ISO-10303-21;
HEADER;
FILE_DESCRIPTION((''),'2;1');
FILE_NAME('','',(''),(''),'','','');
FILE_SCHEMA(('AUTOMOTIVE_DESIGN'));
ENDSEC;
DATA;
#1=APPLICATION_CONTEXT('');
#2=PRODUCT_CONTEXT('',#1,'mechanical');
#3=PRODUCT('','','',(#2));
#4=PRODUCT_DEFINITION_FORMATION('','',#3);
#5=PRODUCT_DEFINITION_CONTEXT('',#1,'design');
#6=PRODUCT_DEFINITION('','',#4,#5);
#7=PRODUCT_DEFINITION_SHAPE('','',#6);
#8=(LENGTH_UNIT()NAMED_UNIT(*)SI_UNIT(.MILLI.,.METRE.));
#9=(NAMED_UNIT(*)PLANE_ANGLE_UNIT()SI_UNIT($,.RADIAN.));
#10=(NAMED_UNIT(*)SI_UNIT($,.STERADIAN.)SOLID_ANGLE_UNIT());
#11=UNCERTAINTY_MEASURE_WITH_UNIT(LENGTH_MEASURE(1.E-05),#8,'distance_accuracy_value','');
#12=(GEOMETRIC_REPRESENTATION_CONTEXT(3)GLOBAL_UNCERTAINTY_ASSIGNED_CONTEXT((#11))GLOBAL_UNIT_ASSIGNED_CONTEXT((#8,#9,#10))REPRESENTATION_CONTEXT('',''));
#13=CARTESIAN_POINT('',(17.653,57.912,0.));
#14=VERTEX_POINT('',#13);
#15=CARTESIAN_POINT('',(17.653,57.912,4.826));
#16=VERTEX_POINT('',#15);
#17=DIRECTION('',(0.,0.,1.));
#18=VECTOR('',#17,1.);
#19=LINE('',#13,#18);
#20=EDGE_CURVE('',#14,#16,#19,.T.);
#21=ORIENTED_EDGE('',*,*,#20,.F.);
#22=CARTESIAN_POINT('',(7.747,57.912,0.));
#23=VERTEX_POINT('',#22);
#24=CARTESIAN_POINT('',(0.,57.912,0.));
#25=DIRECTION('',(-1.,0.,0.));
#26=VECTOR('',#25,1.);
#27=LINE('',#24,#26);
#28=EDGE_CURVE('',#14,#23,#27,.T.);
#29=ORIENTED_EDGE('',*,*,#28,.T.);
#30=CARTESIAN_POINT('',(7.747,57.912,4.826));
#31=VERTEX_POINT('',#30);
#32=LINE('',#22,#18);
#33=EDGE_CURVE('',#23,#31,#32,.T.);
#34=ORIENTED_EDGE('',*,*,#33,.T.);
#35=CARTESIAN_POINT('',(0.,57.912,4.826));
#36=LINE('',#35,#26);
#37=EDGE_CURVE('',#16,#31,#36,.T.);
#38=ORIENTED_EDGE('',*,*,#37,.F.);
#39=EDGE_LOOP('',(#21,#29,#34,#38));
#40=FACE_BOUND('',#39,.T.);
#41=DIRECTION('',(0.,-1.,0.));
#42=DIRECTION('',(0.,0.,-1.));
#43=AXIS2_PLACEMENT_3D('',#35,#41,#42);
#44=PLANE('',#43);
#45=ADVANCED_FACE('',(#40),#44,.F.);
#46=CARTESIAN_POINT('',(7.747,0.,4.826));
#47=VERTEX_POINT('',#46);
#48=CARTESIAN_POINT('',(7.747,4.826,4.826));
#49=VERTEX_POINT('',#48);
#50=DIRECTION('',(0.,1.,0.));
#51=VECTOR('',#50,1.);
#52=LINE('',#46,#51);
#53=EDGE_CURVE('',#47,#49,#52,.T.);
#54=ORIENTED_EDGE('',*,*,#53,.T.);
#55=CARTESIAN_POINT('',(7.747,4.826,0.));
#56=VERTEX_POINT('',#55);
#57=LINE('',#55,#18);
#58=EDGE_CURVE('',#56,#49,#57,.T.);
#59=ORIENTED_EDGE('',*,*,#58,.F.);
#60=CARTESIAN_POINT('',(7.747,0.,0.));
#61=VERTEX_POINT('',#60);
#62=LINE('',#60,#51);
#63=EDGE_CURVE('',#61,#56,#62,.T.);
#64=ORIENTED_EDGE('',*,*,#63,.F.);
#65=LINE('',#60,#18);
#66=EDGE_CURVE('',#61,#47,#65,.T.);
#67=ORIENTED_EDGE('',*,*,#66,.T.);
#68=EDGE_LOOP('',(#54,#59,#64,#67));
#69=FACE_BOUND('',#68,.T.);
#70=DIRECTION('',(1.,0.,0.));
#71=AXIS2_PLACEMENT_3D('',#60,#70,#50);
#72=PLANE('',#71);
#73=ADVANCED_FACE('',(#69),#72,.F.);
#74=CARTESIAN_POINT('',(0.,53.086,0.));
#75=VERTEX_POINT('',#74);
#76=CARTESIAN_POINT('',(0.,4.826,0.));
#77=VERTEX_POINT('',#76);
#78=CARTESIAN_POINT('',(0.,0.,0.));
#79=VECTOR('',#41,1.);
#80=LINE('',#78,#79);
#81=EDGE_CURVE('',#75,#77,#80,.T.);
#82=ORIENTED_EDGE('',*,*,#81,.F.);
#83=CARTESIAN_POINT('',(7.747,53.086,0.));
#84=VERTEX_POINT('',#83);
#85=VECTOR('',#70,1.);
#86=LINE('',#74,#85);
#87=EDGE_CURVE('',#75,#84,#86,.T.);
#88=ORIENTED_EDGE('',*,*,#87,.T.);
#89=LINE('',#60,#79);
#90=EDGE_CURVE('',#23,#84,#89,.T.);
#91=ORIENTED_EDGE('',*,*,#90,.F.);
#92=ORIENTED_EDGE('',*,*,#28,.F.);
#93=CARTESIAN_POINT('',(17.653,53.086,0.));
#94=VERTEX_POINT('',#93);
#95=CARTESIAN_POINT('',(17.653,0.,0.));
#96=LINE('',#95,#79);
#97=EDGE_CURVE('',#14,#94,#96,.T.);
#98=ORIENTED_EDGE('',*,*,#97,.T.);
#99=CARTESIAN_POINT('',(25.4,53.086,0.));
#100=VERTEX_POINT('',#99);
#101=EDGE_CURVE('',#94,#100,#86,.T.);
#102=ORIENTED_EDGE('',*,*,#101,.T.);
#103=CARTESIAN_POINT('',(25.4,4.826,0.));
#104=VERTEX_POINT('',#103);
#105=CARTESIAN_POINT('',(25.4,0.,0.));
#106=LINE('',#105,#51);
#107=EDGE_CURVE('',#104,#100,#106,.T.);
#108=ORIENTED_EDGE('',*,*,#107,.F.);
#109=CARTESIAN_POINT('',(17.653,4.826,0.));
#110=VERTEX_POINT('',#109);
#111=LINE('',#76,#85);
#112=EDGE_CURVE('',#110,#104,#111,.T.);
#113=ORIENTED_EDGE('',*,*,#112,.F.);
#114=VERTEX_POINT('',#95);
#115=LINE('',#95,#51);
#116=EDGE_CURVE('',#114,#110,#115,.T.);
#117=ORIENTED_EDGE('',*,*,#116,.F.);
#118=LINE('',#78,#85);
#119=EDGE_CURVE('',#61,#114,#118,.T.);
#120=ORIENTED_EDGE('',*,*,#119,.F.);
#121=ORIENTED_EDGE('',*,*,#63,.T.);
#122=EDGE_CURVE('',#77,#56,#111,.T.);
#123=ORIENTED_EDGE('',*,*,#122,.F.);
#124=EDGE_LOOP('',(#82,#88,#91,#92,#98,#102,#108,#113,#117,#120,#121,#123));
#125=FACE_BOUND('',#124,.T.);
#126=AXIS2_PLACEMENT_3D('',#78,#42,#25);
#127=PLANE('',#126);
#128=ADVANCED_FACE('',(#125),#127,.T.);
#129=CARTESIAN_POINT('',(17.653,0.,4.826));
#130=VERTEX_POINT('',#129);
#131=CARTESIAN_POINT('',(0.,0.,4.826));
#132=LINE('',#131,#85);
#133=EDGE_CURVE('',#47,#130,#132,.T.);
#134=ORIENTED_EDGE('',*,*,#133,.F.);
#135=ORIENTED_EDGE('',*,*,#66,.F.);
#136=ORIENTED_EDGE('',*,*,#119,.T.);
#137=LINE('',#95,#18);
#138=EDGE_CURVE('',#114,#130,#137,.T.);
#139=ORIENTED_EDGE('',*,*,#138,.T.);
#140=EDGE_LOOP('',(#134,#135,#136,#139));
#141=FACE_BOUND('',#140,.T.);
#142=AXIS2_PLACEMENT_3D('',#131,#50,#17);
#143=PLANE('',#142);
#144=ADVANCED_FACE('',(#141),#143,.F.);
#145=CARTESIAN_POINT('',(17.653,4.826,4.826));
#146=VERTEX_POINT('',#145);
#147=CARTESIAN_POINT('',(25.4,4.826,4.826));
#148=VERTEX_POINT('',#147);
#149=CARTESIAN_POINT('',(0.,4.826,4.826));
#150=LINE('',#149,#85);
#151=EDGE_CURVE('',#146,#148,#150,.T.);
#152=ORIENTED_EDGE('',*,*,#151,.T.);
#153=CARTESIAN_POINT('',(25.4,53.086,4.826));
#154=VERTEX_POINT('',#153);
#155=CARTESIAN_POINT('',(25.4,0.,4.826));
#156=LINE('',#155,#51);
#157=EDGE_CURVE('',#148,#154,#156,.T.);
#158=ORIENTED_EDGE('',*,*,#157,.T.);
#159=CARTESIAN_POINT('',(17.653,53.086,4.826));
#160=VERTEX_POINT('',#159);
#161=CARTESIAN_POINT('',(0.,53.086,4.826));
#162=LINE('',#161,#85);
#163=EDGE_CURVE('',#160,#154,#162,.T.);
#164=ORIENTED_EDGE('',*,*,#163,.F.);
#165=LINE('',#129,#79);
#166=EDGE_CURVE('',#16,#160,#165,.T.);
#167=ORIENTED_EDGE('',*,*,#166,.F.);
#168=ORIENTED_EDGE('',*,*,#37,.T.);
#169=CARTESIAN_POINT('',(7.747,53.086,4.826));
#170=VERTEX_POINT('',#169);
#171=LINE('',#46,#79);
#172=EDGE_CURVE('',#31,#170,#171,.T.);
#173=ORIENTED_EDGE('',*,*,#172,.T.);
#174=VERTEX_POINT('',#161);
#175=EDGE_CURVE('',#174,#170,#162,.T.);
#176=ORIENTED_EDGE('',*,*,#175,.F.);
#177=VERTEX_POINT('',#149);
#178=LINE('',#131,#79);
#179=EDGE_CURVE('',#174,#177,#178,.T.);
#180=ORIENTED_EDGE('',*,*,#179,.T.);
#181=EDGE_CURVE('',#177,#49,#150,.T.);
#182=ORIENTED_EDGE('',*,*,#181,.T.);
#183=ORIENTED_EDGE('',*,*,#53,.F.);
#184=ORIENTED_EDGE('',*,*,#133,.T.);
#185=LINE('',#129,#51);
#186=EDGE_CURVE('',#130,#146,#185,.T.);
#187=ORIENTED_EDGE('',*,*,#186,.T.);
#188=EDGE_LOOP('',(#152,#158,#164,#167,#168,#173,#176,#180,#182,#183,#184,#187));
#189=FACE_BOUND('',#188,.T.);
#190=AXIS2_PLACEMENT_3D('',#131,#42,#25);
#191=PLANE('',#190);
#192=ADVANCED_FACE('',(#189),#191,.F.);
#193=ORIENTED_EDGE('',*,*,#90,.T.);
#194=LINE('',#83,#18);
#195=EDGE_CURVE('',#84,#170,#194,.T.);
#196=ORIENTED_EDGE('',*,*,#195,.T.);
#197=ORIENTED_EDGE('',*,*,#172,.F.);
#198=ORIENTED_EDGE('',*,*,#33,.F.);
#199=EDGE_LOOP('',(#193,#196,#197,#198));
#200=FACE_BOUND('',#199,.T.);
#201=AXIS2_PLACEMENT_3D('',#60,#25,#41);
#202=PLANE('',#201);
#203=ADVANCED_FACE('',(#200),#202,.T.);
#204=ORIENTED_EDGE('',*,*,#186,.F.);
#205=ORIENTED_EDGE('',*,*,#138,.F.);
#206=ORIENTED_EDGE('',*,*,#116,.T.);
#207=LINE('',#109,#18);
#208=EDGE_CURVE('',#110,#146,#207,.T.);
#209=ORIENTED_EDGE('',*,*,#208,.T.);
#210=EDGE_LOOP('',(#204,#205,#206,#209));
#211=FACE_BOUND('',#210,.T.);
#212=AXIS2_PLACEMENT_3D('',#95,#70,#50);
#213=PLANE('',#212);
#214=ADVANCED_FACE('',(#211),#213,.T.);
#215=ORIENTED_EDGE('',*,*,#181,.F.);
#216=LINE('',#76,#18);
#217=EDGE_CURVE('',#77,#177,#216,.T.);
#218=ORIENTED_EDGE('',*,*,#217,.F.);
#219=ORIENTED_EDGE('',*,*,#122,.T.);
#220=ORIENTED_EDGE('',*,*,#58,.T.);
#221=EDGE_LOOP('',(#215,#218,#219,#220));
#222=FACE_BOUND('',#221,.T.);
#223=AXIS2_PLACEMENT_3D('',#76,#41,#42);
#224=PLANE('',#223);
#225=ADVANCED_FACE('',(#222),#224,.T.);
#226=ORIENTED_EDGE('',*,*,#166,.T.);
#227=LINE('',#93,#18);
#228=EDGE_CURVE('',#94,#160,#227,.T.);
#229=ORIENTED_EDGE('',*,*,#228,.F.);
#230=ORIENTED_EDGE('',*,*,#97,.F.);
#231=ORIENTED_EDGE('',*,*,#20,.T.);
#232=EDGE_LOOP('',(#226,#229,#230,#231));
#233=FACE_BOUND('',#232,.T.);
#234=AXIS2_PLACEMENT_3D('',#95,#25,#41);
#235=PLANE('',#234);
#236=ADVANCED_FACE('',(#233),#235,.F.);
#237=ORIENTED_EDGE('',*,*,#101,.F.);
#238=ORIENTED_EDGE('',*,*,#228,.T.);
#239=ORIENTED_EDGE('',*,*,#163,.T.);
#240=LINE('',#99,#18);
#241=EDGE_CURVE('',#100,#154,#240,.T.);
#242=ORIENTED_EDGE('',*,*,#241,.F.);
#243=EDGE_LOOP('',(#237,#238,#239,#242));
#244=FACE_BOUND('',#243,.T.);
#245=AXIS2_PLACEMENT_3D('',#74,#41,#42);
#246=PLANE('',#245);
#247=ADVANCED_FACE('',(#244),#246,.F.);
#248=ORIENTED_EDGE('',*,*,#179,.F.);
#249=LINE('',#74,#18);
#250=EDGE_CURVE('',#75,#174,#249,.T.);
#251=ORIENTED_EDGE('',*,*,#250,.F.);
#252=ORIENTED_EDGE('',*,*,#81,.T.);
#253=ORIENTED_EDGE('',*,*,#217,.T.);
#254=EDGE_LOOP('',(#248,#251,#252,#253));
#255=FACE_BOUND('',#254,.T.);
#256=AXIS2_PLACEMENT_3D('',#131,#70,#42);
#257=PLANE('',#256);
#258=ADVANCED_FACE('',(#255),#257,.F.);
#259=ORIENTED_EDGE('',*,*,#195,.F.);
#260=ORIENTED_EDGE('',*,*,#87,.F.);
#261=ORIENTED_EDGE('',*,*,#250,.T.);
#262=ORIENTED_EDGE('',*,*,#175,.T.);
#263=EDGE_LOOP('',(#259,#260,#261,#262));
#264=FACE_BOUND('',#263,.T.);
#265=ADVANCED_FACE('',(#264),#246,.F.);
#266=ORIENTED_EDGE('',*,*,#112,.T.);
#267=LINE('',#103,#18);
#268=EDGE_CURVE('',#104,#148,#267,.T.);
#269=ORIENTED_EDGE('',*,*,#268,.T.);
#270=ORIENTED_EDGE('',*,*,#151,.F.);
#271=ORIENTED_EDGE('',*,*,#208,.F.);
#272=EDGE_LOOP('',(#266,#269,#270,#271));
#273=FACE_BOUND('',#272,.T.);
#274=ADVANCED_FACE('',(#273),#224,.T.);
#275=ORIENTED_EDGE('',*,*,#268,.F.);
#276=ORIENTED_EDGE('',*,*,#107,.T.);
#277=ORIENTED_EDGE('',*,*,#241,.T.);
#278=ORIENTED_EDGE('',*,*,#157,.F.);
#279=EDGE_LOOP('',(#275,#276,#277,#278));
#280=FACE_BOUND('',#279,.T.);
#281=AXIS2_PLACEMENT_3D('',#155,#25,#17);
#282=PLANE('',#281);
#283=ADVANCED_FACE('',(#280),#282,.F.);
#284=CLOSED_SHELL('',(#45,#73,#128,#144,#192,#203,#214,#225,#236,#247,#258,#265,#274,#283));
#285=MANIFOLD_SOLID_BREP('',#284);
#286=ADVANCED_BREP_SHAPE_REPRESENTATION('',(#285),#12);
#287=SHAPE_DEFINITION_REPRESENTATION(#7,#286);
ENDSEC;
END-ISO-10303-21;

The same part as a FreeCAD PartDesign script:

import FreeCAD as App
import Part
import Sketcher

V = App.Vector
Q = App.Units.Quantity

doc = App.newDocument("Part")
params = doc.addObject("Spreadsheet::Sheet", "Params")
for row, (alias, value) in enumerate([
    ("sketch1_width", "1 in"),
    ("sketch1_height", "2.28 in"),
    ("pad1_length", "0.19 in"),
    ("sketch2_height", "0.19 in"),
    ("sketch2_width", "0.305 in"),
], start=1):
    params.set(f"A{row}", alias)
    params.set(f"B{row}", "=" + value)
    params.setAlias(f"B{row}", alias)

body = doc.addObject("PartDesign::Body", "Body")

sketch1 = body.newObject("Sketcher::SketchObject", "Sketch")
sketch1.AttachmentSupport = (doc.getObject("XY_Plane"), [""])
sketch1.MapMode = "FlatFace"
sketch1.addGeometry(Part.LineSegment(V(0, 58, 0), V(0, 0, 0)), False)
sketch1.addGeometry(Part.LineSegment(V(0, 0, 0), V(25, 0, 0)), False)
sketch1.addGeometry(Part.LineSegment(V(25, 0, 0), V(25, 58, 0)), False)
sketch1.addGeometry(Part.LineSegment(V(25, 58, 0), V(0, 58, 0)), False)
sketch1.addConstraint(Sketcher.Constraint("Coincident", 0, 2, 1, 1))
sketch1.addConstraint(Sketcher.Constraint("Coincident", 1, 2, 2, 1))
sketch1.addConstraint(Sketcher.Constraint("Coincident", 2, 2, 3, 1))
sketch1.addConstraint(Sketcher.Constraint("Coincident", 3, 2, 0, 1))
sketch1.addConstraint(Sketcher.Constraint("Vertical", 0))
sketch1.addConstraint(Sketcher.Constraint("Horizontal", 1))
sketch1.addConstraint(Sketcher.Constraint("Vertical", 2))
sketch1.addConstraint(Sketcher.Constraint("Horizontal", 3))
sketch1.addConstraint(Sketcher.Constraint("Coincident", 0, 2, -1, 1))
sketch1.addConstraint(Sketcher.Constraint("DistanceX", 1, 1, 1, 2, Q("1 in")))
sketch1.addConstraint(Sketcher.Constraint("DistanceY", 0, 2, 0, 1, Q("2.28 in")))
sketch1.setExpression("Constraints[9]", "Params.sketch1_width")
sketch1.setExpression("Constraints[10]", "Params.sketch1_height")
pad1 = body.newObject("PartDesign::Pad", "Pad")
pad1.Profile = sketch1
pad1.setExpression("Length", "Params.pad1_length")

sketch2 = body.newObject("Sketcher::SketchObject", "Sketch001")
sketch2.AttachmentSupport = (doc.getObject("XY_Plane"), [""])
sketch2.MapMode = "FlatFace"
sketch2.AttachmentOffset = App.Placement(V(0, 0, 0.19 * 25.4), App.Rotation())
sketch2.addGeometry(Part.LineSegment(V(17.7, 57.9, 0), V(17.7, 53.1, 0)), False)
sketch2.addGeometry(Part.LineSegment(V(17.7, 53.1, 0), V(25.4, 53.1, 0)), False)
sketch2.addGeometry(Part.LineSegment(V(25.4, 53.1, 0), V(25.4, 57.9, 0)), False)
sketch2.addGeometry(Part.LineSegment(V(25.4, 57.9, 0), V(17.7, 57.9, 0)), False)
sketch2.addGeometry(Part.LineSegment(V(0, 57.9, 0), V(0, 53.1, 0)), False)
sketch2.addGeometry(Part.LineSegment(V(0, 53.1, 0), V(7.7, 53.1, 0)), False)
sketch2.addGeometry(Part.LineSegment(V(7.7, 53.1, 0), V(7.7, 57.9, 0)), False)
sketch2.addGeometry(Part.LineSegment(V(7.7, 57.9, 0), V(0, 57.9, 0)), False)
sketch2.addGeometry(Part.LineSegment(V(17.7, 4.8, 0), V(17.7, 0, 0)), False)
sketch2.addGeometry(Part.LineSegment(V(17.7, 0, 0), V(25.4, 0, 0)), False)
sketch2.addGeometry(Part.LineSegment(V(25.4, 0, 0), V(25.4, 4.8, 0)), False)
sketch2.addGeometry(Part.LineSegment(V(25.4, 4.8, 0), V(17.7, 4.8, 0)), False)
sketch2.addGeometry(Part.LineSegment(V(0, 4.8, 0), V(0, 0, 0)), False)
sketch2.addGeometry(Part.LineSegment(V(0, 0, 0), V(7.7, 0, 0)), False)
sketch2.addGeometry(Part.LineSegment(V(7.7, 0, 0), V(7.7, 4.8, 0)), False)
sketch2.addGeometry(Part.LineSegment(V(7.7, 4.8, 0), V(0, 4.8, 0)), False)
sketch2.addConstraint(Sketcher.Constraint("Coincident", 0, 2, 1, 1))
sketch2.addConstraint(Sketcher.Constraint("Coincident", 1, 2, 2, 1))
sketch2.addConstraint(Sketcher.Constraint("Coincident", 2, 2, 3, 1))
sketch2.addConstraint(Sketcher.Constraint("Coincident", 3, 2, 0, 1))
sketch2.addConstraint(Sketcher.Constraint("Coincident", 4, 2, 5, 1))
sketch2.addConstraint(Sketcher.Constraint("Coincident", 5, 2, 6, 1))
sketch2.addConstraint(Sketcher.Constraint("Coincident", 6, 2, 7, 1))
sketch2.addConstraint(Sketcher.Constraint("Coincident", 7, 2, 4, 1))
sketch2.addConstraint(Sketcher.Constraint("Coincident", 8, 2, 9, 1))
sketch2.addConstraint(Sketcher.Constraint("Coincident", 9, 2, 10, 1))
sketch2.addConstraint(Sketcher.Constraint("Coincident", 10, 2, 11, 1))
sketch2.addConstraint(Sketcher.Constraint("Coincident", 11, 2, 8, 1))
sketch2.addConstraint(Sketcher.Constraint("Coincident", 12, 2, 13, 1))
sketch2.addConstraint(Sketcher.Constraint("Coincident", 13, 2, 14, 1))
sketch2.addConstraint(Sketcher.Constraint("Coincident", 14, 2, 15, 1))
sketch2.addConstraint(Sketcher.Constraint("Coincident", 15, 2, 12, 1))
sketch2.addConstraint(Sketcher.Constraint("Vertical", 0))
sketch2.addConstraint(Sketcher.Constraint("Horizontal", 1))
sketch2.addConstraint(Sketcher.Constraint("Vertical", 2))
sketch2.addConstraint(Sketcher.Constraint("Horizontal", 3))
sketch2.addConstraint(Sketcher.Constraint("Vertical", 4))
sketch2.addConstraint(Sketcher.Constraint("Horizontal", 5))
sketch2.addConstraint(Sketcher.Constraint("Vertical", 6))
sketch2.addConstraint(Sketcher.Constraint("Horizontal", 7))
sketch2.addConstraint(Sketcher.Constraint("Vertical", 8))
sketch2.addConstraint(Sketcher.Constraint("Horizontal", 9))
sketch2.addConstraint(Sketcher.Constraint("Vertical", 10))
sketch2.addConstraint(Sketcher.Constraint("Horizontal", 11))
sketch2.addConstraint(Sketcher.Constraint("Vertical", 12))
sketch2.addConstraint(Sketcher.Constraint("Horizontal", 13))
sketch2.addConstraint(Sketcher.Constraint("Vertical", 14))
sketch2.addConstraint(Sketcher.Constraint("Horizontal", 15))
sketch2.addConstraint(Sketcher.Constraint("Coincident", 12, 2, -1, 1))
sketch2.addConstraint(Sketcher.Constraint("PointOnObject", 4, 2, -2))
sketch2.addConstraint(Sketcher.Constraint("PointOnObject", 8, 2, -1))
sketch2.addConstraint(Sketcher.Constraint("Horizontal", 1, 2, 4, 2))
sketch2.addConstraint(Sketcher.Constraint("Horizontal", 3, 2, 6, 2))
sketch2.addConstraint(Sketcher.Constraint("Horizontal", 11, 2, 14, 2))
sketch2.addConstraint(Sketcher.Constraint("Vertical", 3, 2, 8, 2))
sketch2.addConstraint(Sketcher.Constraint("Vertical", 2, 2, 9, 2))
sketch2.addConstraint(Sketcher.Constraint("Vertical", 6, 2, 13, 2))
sketch2.addConstraint(Sketcher.Constraint("Equal", 3, 5))
sketch2.addConstraint(Sketcher.Constraint("Equal", 6, 8))
sketch2.addConstraint(Sketcher.Constraint("DistanceX", -1, 1, 1, 2, Q("1 in")))
sketch2.addConstraint(Sketcher.Constraint("DistanceY", 0, 2, 0, 1, Q("0.19 in")))
sketch2.addConstraint(Sketcher.Constraint("DistanceY", 10, 2, 1, 2, Q("1.9 in")))
sketch2.addConstraint(Sketcher.Constraint("DistanceX", 1, 1, 1, 2, Q("0.305 in")))
sketch2.setExpression("Constraints[44]", "Params.sketch2_height")
sketch2.setExpression("Constraints[46]", "Params.sketch2_width")
pocket1 = body.newObject("PartDesign::Pocket", "Pocket")
pocket1.Profile = sketch2
pocket1.Type = "ThroughAll"

doc.recompute()
